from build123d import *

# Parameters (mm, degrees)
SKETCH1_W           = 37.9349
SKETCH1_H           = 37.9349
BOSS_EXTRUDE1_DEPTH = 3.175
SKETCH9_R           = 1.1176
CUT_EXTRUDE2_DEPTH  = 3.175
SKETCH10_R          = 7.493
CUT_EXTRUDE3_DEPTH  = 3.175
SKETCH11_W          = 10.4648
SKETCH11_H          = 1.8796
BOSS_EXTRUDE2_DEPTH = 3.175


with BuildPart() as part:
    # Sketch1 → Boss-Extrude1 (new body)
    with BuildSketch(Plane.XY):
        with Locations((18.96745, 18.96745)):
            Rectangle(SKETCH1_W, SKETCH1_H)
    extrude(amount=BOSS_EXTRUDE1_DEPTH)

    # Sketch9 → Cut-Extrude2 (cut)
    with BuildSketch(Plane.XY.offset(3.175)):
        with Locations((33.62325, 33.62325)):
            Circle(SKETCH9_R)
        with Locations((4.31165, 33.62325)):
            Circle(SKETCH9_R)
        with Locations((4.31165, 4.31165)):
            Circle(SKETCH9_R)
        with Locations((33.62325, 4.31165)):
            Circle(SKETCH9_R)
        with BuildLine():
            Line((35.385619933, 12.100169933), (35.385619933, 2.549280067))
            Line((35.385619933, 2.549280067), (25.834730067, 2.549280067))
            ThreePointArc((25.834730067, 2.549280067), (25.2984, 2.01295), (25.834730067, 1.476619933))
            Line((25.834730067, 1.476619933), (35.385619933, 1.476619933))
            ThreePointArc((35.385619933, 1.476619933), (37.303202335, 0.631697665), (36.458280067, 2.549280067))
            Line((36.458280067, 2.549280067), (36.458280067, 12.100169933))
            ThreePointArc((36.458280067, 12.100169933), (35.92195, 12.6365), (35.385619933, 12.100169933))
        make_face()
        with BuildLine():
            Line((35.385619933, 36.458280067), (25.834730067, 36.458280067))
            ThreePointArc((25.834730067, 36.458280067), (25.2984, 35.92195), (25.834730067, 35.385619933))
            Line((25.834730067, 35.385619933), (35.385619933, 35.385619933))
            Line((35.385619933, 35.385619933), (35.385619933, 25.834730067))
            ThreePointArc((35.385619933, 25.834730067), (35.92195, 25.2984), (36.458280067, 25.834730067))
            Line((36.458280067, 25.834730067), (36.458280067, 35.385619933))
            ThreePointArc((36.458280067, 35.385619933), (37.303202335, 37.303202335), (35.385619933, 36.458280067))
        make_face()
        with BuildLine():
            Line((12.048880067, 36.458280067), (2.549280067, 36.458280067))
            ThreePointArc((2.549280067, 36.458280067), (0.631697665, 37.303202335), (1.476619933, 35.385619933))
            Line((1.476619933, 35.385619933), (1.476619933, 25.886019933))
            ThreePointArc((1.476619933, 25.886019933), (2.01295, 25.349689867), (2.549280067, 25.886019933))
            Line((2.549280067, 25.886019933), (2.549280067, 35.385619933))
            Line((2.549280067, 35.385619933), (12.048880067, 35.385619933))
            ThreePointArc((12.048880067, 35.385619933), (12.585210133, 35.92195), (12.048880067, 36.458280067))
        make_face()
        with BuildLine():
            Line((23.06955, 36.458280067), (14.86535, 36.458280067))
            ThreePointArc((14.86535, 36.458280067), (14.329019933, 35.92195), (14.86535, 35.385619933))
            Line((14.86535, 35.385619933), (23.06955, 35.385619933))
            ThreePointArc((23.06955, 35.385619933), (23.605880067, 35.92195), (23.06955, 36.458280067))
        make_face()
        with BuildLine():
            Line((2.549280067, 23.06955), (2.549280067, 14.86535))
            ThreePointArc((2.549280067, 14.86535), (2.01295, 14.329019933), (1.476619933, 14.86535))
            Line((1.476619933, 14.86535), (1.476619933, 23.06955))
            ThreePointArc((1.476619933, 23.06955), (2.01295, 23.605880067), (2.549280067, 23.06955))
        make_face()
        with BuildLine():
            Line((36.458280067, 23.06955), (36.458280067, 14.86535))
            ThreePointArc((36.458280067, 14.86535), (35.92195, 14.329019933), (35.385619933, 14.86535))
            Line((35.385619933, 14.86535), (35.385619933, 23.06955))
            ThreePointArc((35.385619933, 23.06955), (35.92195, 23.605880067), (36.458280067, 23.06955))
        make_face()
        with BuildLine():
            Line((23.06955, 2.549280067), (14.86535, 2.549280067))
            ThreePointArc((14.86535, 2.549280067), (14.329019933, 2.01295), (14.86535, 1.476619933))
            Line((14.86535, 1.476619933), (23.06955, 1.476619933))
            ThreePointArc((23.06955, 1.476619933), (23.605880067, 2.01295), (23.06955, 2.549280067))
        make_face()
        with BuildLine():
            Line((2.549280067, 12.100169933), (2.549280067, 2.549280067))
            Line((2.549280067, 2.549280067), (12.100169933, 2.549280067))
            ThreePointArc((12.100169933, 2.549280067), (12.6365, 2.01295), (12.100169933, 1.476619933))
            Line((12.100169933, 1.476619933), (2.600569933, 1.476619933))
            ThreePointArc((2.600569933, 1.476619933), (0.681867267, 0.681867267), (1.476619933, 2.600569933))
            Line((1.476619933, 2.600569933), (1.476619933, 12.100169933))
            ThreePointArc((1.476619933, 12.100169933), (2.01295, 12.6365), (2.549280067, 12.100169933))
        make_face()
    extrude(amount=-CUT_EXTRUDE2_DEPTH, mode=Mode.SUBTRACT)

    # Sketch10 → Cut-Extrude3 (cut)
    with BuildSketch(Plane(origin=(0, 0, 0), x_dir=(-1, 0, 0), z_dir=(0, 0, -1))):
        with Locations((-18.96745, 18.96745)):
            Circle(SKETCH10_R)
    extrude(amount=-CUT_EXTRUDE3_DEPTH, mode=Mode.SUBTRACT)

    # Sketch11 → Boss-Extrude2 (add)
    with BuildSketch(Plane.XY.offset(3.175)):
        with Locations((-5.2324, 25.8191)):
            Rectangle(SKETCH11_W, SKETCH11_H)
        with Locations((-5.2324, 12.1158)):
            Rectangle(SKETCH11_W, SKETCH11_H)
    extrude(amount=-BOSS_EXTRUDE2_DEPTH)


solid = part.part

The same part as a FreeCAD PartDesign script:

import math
import FreeCAD as App
import Part
import Sketcher

V = App.Vector
Q = App.Units.Quantity

doc = App.newDocument("Part")
body = doc.addObject("PartDesign::Body", "Body")

# Sketch on XY plane
sketch1 = body.newObject("Sketcher::SketchObject", "Sketch")
sketch1.AttachmentSupport = (doc.getObject("XY_Plane"), [""])
sketch1.MapMode = "FlatFace"
sketch1.addGeometry([
    Part.LineSegment(V(0, 37.9349, 0), V(0, 0, 0)),
    Part.LineSegment(V(0, 0, 0), V(37.9349, 0, 0)),
    Part.LineSegment(V(37.9349, 0, 0), V(37.9349, 37.9349, 0)),
    Part.LineSegment(V(37.9349, 37.9349, 0), V(0, 37.9349, 0)),
], False)
sketch1.addConstraint([
    Sketcher.Constraint("Coincident", 0, 2, 1, 1),
    Sketcher.Constraint("Coincident", 1, 2, 2, 1),
    Sketcher.Constraint("Coincident", 2, 2, 3, 1),
    Sketcher.Constraint("Coincident", 3, 2, 0, 1),
    Sketcher.Constraint("Vertical", 0),
    Sketcher.Constraint("Horizontal", 1),
    Sketcher.Constraint("Vertical", 2),
    Sketcher.Constraint("Horizontal", 3),
    Sketcher.Constraint("Coincident", 0, 2, -1, 1),
    Sketcher.Constraint("Equal", 3, 0),
    Sketcher.Constraint("DistanceX", 1, 1, 1, 2, Q("1.4935 in")),
])
pad1 = body.newObject("PartDesign::Pad", "Pad")
pad1.Profile = sketch1
pad1.Length = Q("0.125 in")

# Sketch on XY plane
sketch2 = body.newObject("Sketcher::SketchObject", "Sketch001")
sketch2.AttachmentSupport = (doc.getObject("XY_Plane"), [""])
sketch2.MapMode = "FlatFace"
sketch2.AttachmentOffset = App.Placement(V(0, 0, 0.125 * 25.4), App.Rotation())
sketch2.addGeometry([
    Part.Circle(V(33.62325, 33.62325, 0), V(0, 0, 1), 1.1176),  # 0
    Part.Circle(V(4.31165, 33.62325, 0), V(0, 0, 1), 1.1176),  # 1
    Part.Circle(V(4.31165, 4.31165, 0), V(0, 0, 1), 1.1176),  # 2
    Part.Circle(V(33.62325, 4.31165, 0), V(0, 0, 1), 1.1176),  # 3
    Part.LineSegment(V(35.38562, 12.10017, 0), V(35.38562, 2.54928, 0)),  # 4
    Part.LineSegment(V(35.38562, 2.54928, 0), V(25.83473, 2.54928, 0)),  # 5
    Part.ArcOfCircle(Part.Circle(V(25.83473, 2.01295, 0), V(0, 0, 1), 0.53633), math.radians(90), math.radians(270)),  # 6
    Part.LineSegment(V(25.83473, 1.47662, 0), V(35.38562, 1.47662, 0)),  # 7
    Part.ArcOfCircle(Part.Circle(V(36.50845, 1.42645, 0), V(0, 0, 1), 1.12395), math.radians(177.441646), math.radians(452.558354)),  # 8
    Part.LineSegment(V(36.45828, 2.54928, 0), V(36.45828, 12.10017, 0)),  # 9
    Part.ArcOfCircle(Part.Circle(V(35.92195, 12.10017, 0), V(0, 0, 1), 0.53633), math.radians(0), math.radians(180)),  # 10
    Part.LineSegment(V(35.38562, 36.45828, 0), V(25.83473, 36.45828, 0)),  # 11
    Part.ArcOfCircle(Part.Circle(V(25.83473, 35.92195, 0), V(0, 0, 1), 0.53633), math.radians(90), math.radians(270)),  # 12
    Part.LineSegment(V(25.83473, 35.38562, 0), V(35.38562, 35.38562, 0)),  # 13
    Part.LineSegment(V(35.38562, 35.38562, 0), V(35.38562, 25.83473, 0)),  # 14
    Part.ArcOfCircle(Part.Circle(V(35.92195, 25.83473, 0), V(0, 0, 1), 0.53633), math.radians(180), math.radians(360)),  # 15
    Part.LineSegment(V(36.45828, 25.83473, 0), V(36.45828, 35.38562, 0)),  # 16
    Part.ArcOfCircle(Part.Circle(V(36.50845, 36.50845, 0), V(0, 0, 1), 1.12395), math.radians(-92.558354), math.radians(182.558354)),  # 17
    Part.LineSegment(V(12.04888, 36.45828, 0), V(2.54928, 36.45828, 0)),  # 18
    Part.ArcOfCircle(Part.Circle(V(1.42645, 36.50845, 0), V(0, 0, 1), 1.12395), math.radians(-2.558354), math.radians(272.558354)),  # 19
    Part.LineSegment(V(1.47662, 35.38562, 0), V(1.47662, 25.88602, 0)),  # 20
    Part.ArcOfCircle(Part.Circle(V(2.01295, 25.88602, 0), V(0, 0, 1), 0.53633), math.radians(-180), math.radians(0)),  # 21
    Part.LineSegment(V(2.54928, 25.88602, 0), V(2.54928, 35.38562, 0)),  # 22
    Part.LineSegment(V(2.54928, 35.38562, 0), V(12.04888, 35.38562, 0)),  # 23
    Part.ArcOfCircle(Part.Circle(V(12.04888, 35.92195, 0), V(0, 0, 1), 0.53633), math.radians(-90), math.radians(90)),  # 24
    Part.LineSegment(V(23.06955, 36.45828, 0), V(14.86535, 36.45828, 0)),  # 25
    Part.ArcOfCircle(Part.Circle(V(14.86535, 35.92195, 0), V(0, 0, 1), 0.53633), math.radians(90), math.radians(270)),  # 26
    Part.LineSegment(V(14.86535, 35.38562, 0), V(23.06955, 35.38562, 0)),  # 27
    Part.ArcOfCircle(Part.Circle(V(23.06955, 35.92195, 0), V(0, 0, 1), 0.53633), math.radians(-90), math.radians(90)),  # 28
    Part.LineSegment(V(2.54928, 14.86535, 0), V(2.54928, 23.06955, 0)),  # 29
    Part.ArcOfCircle(Part.Circle(V(2.01295, 23.06955, 0), V(0, 0, 1), 0.53633), math.radians(0), math.radians(180)),  # 30
    Part.LineSegment(V(1.47662, 23.06955, 0), V(1.47662, 14.86535, 0)),  # 31
    Part.ArcOfCircle(Part.Circle(V(2.01295, 14.86535, 0), V(0, 0, 1), 0.53633), math.radians(180), math.radians(360)),  # 32
    Part.LineSegment(V(36.45828, 14.86535, 0), V(36.45828, 23.06955, 0)),  # 33
    Part.ArcOfCircle(Part.Circle(V(35.92195, 23.06955, 0), V(0, 0, 1), 0.53633), math.radians(0), math.radians(180)),  # 34
    Part.LineSegment(V(35.38562, 23.06955, 0), V(35.38562, 14.86535, 0)),  # 35
    Part.ArcOfCircle(Part.Circle(V(35.92195, 14.86535, 0), V(0, 0, 1), 0.53633), math.radians(180), math.radians(360)),  # 36
    Part.LineSegment(V(23.06955, 2.54928, 0), V(14.86535, 2.54928, 0)),  # 37
    Part.ArcOfCircle(Part.Circle(V(14.86535, 2.01295, 0), V(0, 0, 1), 0.53633), math.radians(90), math.radians(270)),  # 38
    Part.LineSegment(V(14.86535, 1.47662, 0), V(23.06955, 1.47662, 0)),  # 39
    Part.ArcOfCircle(Part.Circle(V(23.06955, 2.01295, 0), V(0, 0, 1), 0.53633), math.radians(-90), math.radians(90)),  # 40
    Part.LineSegment(V(2.54928, 2.54928, 0), V(2.54928, 12.10017, 0)),  # 41
    Part.ArcOfCircle(Part.Circle(V(2.01295, 12.10017, 0), V(0, 0, 1), 0.53633), math.radians(0), math.radians(180)),  # 42
    Part.LineSegment(V(1.47662, 12.10017, 0), V(1.47662, 2.60057, 0)),  # 43
    Part.ArcOfCircle(Part.Circle(V(1.47662, 1.47662, 0), V(0, 0, 1), 1.12395), math.radians(90), math.radians(360)),  # 44
    Part.LineSegment(V(2.60057, 1.47662, 0), V(12.10017, 1.47662, 0)),  # 45
    Part.ArcOfCircle(Part.Circle(V(12.10017, 2.01295, 0), V(0, 0, 1), 0.53633), math.radians(-90), math.radians(90)),  # 46
    Part.LineSegment(V(12.10017, 2.54928, 0), V(2.54928, 2.54928, 0)),  # 47
], False)
sketch2.addConstraint([
    Sketcher.Constraint("Coincident", 4, 2, 5, 1),
    Sketcher.Constraint("Tangent", 5, 2, 6, 1),
    Sketcher.Constraint("Tangent", 6, 2, 7, 1),
    Sketcher.Constraint("Coincident", 7, 2, 8, 1),
    Sketcher.Constraint("Coincident", 8, 2, 9, 1),
    Sketcher.Constraint("Tangent", 9, 2, 10, 1),
    Sketcher.Constraint("Tangent", 10, 2, 4, 1),
    Sketcher.Constraint("Tangent", 11, 2, 12, 1),
    Sketcher.Constraint("Tangent", 12, 2, 13, 1),
    Sketcher.Constraint("Coincident", 13, 2, 14, 1),
    Sketcher.Constraint("Tangent", 14, 2, 15, 1),
    Sketcher.Constraint("Tangent", 15, 2, 16, 1),
    Sketcher.Constraint("Coincident", 16, 2, 17, 1),
    Sketcher.Constraint("Coincident", 17, 2, 11, 1),
    Sketcher.Constraint("Coincident", 18, 2, 19, 1),
    Sketcher.Constraint("Coincident", 19, 2, 20, 1),
    Sketcher.Constraint("Tangent", 20, 2, 21, 1),
    Sketcher.Constraint("Tangent", 21, 2, 22, 1),
    Sketcher.Constraint("Coincident", 22, 2, 23, 1),
    Sketcher.Constraint("Tangent", 23, 2, 24, 1),
    Sketcher.Constraint("Tangent", 24, 2, 18, 1),
    Sketcher.Constraint("Tangent", 25, 2, 26, 1),
    Sketcher.Constraint("Tangent", 26, 2, 27, 1),
    Sketcher.Constraint("Tangent", 27, 2, 28, 1),
    Sketcher.Constraint("Tangent", 28, 2, 25, 1),
    Sketcher.Constraint("Tangent", 29, 2, 30, 1),
    Sketcher.Constraint("Tangent", 30, 2, 31, 1),
    Sketcher.Constraint("Tangent", 31, 2, 32, 1),
    Sketcher.Constraint("Tangent", 32, 2, 29, 1),
    Sketcher.Constraint("Tangent", 33, 2, 34, 1),
    Sketcher.Constraint("Tangent", 34, 2, 35, 1),
    Sketcher.Constraint("Tangent", 35, 2, 36, 1),
    Sketcher.Constraint("Tangent", 36, 2, 33, 1),
    Sketcher.Constraint("Tangent", 37, 2, 38, 1),
    Sketcher.Constraint("Tangent", 38, 2, 39, 1),
    Sketcher.Constraint("Tangent", 39, 2, 40, 1),
    Sketcher.Constraint("Tangent", 40, 2, 37, 1),
    Sketcher.Constraint("Tangent", 41, 2, 42, 1),
    Sketcher.Constraint("Tangent", 42, 2, 43, 1),
    Sketcher.Constraint("Coincident", 43, 2, 44, 1),
    Sketcher.Constraint("Coincident", 44, 2, 45, 1),
    Sketcher.Constraint("Tangent", 45, 2, 46, 1),
    Sketcher.Constraint("Tangent", 46, 2, 47, 1),
    Sketcher.Constraint("Coincident", 47, 2, 41, 1),
    Sketcher.Constraint("Vertical", 4),
    Sketcher.Constraint("Horizontal", 5),
    Sketcher.Constraint("Horizontal", 7),
    Sketcher.Constraint("Vertical", 9),
    Sketcher.Constraint("Horizontal", 11),
    Sketcher.Constraint("Horizontal", 13),
    Sketcher.Constraint("Vertical", 14),
    Sketcher.Constraint("Vertical", 16),
    Sketcher.Constraint("Horizontal", 18),
    Sketcher.Constraint("Vertical", 20),
    Sketcher.Constraint("Vertical", 22),
    Sketcher.Constraint("Horizontal", 23),
    Sketcher.Constraint("Horizontal", 25),
    Sketcher.Constraint("Horizontal", 27),
    Sketcher.Constraint("Vertical", 29),
    Sketcher.Constraint("Vertical", 31),
    Sketcher.Constraint("Vertical", 33),
    Sketcher.Constraint("Vertical", 35),
    Sketcher.Constraint("Horizontal", 37),
    Sketcher.Constraint("Horizontal", 39),
    Sketcher.Constraint("Vertical", 41),
    Sketcher.Constraint("Vertical", 43),
    Sketcher.Constraint("Horizontal", 45),
    Sketcher.Constraint("Horizontal", 47),
    Sketcher.Constraint("Equal", 0, 1),
    Sketcher.Constraint("Equal", 1, 2),
    Sketcher.Constraint("Equal", 2, 3),
    Sketcher.Constraint("Equal", 6, 10),
    Sketcher.Constraint("Equal", 10, 12),
    Sketcher.Constraint("Equal", 12, 15),
    Sketcher.Constraint("Equal", 8, 17),
    Sketcher.Constraint("Equal", 17, 19),
    Sketcher.Constraint("Equal", 15, 21),
    Sketcher.Constraint("Equal", 21, 24),
    Sketcher.Constraint("Equal", 24, 26),
    Sketcher.Constraint("Equal", 28, 30),
    Sketcher.Constraint("Equal", 32, 34),
    Sketcher.Constraint("Equal", 36, 38),
    Sketcher.Constraint("Equal", 40, 42),
    Sketcher.Constraint("Equal", 19, 44),
    Sketcher.Constraint("Equal", 42, 46),
    Sketcher.Constraint("Horizontal", 0, 3, 1, 3),
    Sketcher.Constraint("Horizontal", 2, 3, 3, 3),
    Sketcher.Constraint("Horizontal", 17, 3, 19, 3),
    Sketcher.Constraint("Horizontal", 12, 3, 24, 3),
    Sketcher.Constraint("Horizontal", 24, 3, 26, 3),
    Sketcher.Constraint("Horizontal", 30, 3, 34, 3),
    Sketcher.Constraint("Horizontal", 32, 3, 36, 3),
    Sketcher.Constraint("Horizontal", 6, 3, 38, 3),
    Sketcher.Constraint("Horizontal", 10, 3, 42, 3),
    Sketcher.Constraint("Horizontal", 40, 3, 46, 3),
    Sketcher.Constraint("Horizontal", 44, 3, 6, 2),
    Sketcher.Constraint("Horizontal", 5, 2, 8, 2),
    Sketcher.Constraint("Horizontal", 13, 2, 16, 2),
    Sketcher.Constraint("Horizontal", 16, 2, 19, 2),
    Sketcher.Constraint("Vertical", 1, 3, 2, 3),
    Sketcher.Constraint("Vertical", 0, 3, 3, 3),
    Sketcher.Constraint("Vertical", 6, 3, 12, 3),
    Sketcher.Constraint("Vertical", 10, 3, 15, 3),
    Sketcher.Constraint("Vertical", 8, 3, 17, 3),
    Sketcher.Constraint("Vertical", 21, 3, 30, 3),
    Sketcher.Constraint("Vertical", 15, 3, 34, 3),
    Sketcher.Constraint("Vertical", 26, 3, 38, 3),
    Sketcher.Constraint("Vertical", 28, 3, 40, 3),
    Sketcher.Constraint("Vertical", 32, 3, 42, 3),
    Sketcher.Constraint("Vertical", 4, 2, 7, 2),
    Sketcher.Constraint("Vertical", 44, 3, 19, 2),
    Sketcher.Constraint("Equal", 23, 45),
    Sketcher.Constraint("Equal", 13, 47),
    Sketcher.Constraint("Equal", 47, 4),
    Sketcher.Constraint("Equal", 9, 14),
    Sketcher.Constraint("Equal", 45, 20),
    Sketcher.Constraint("Equal", 39, 29),
    Sketcher.Constraint("Diameter", 0, Q("0.088 in")),
    Sketcher.Constraint("DistanceX", 18, 2, 18, 1, Q("0.374 in")),
    Sketcher.Constraint("DistanceX", 25, 2, 25, 1, Q("0.323 in")),
    Sketcher.Constraint("Radius", 6, Q("0.53633 mm")),
    Sketcher.Constraint("Radius", 8, Q("1.12395 mm")),
    Sketcher.Constraint("DistanceX", -1, 1, 0, 3, Q("33.62325 mm")),
    Sketcher.Constraint("DistanceY", -1, 1, 0, 3, Q("33.62325 mm")),
    Sketcher.Constraint("DistanceX", -1, 1, 1, 3, Q("4.31165 mm")),
    Sketcher.Constraint("DistanceY", -1, 1, 2, 3, Q("4.31165 mm")),
    Sketcher.Constraint("DistanceX", -1, 1, 6, 3, Q("25.83473 mm")),
    Sketcher.Constraint("DistanceY", -1, 1, 6, 3, Q("2.01295 mm")),
    Sketcher.Constraint("DistanceY", -1, 1, 12, 3, Q("35.92195 mm")),
    Sketcher.Constraint("DistanceX", -1, 1, 19, 3, Q("1.42645 mm")),
    Sketcher.Constraint("DistanceX", -1, 1, 26, 3, Q("14.86535 mm")),
    Sketcher.Constraint("DistanceY", -1, 1, 30, 3, Q("23.06955 mm")),
])
pocket1 = body.newObject("PartDesign::Pocket", "Pocket")
pocket1.Profile = sketch2
pocket1.Length = Q("0.125 in")

# Sketch on XY plane
sketch3 = body.newObject("Sketcher::SketchObject", "Sketch002")
sketch3.AttachmentSupport = (doc.getObject("XY_Plane"), [""])
sketch3.MapMode = "FlatFace"
sketch3.addGeometry(Part.Circle(V(18.96745, 18.96745, 0), V(0, 0, 1), 7.493), False)
sketch3.addConstraint([
    Sketcher.Constraint("Diameter", 0, Q("0.59 in")),
    Sketcher.Constraint("DistanceX", -1, 1, 0, 3, Q("18.96745 mm")),
    Sketcher.Constraint("DistanceY", -1, 1, 0, 3, Q("18.96745 mm")),
])
pocket2 = body.newObject("PartDesign::Pocket", "Pocket001")
pocket2.Profile = sketch3
pocket2.Length = Q("0.125 in")
pocket2.Reversed = True

# Sketch on XY plane
sketch4 = body.newObject("Sketcher::SketchObject", "Sketch003")
sketch4.AttachmentSupport = (doc.getObject("XY_Plane"), [""])
sketch4.MapMode = "FlatFace"
sketch4.AttachmentOffset = App.Placement(V(0, 0, 0.125 * 25.4), App.Rotation())
sketch4.addGeometry([
    Part.LineSegment(V(-10.4648, 26.7589, 0), V(-10.4648, 24.8793, 0)),  # 0
    Part.LineSegment(V(-10.4648, 24.8793, 0), V(0, 24.8793, 0)),  # 1
    Part.LineSegment(V(0, 24.8793, 0), V(0, 26.7589, 0)),  # 2
    Part.LineSegment(V(0, 26.7589, 0), V(-10.4648, 26.7589, 0)),  # 3
    Part.LineSegment(V(-10.4648, 13.0556, 0), V(-10.4648, 11.176, 0)),  # 4
    Part.LineSegment(V(-10.4648, 11.176, 0), V(0, 11.176, 0)),  # 5
    Part.LineSegment(V(0, 11.176, 0), V(0, 13.0556, 0)),  # 6
    Part.LineSegment(V(0, 13.0556, 0), V(-10.4648, 13.0556, 0)),  # 7
], False)
sketch4.addConstraint([
    Sketcher.Constraint("Coincident", 0, 2, 1, 1),
    Sketcher.Constraint("Coincident", 1, 2, 2, 1),
    Sketcher.Constraint("Coincident", 2, 2, 3, 1),
    Sketcher.Constraint("Coincident", 3, 2, 0, 1),
    Sketcher.Constraint("Coincident", 4, 2, 5, 1),
    Sketcher.Constraint("Coincident", 5, 2, 6, 1),
    Sketcher.Constraint("Coincident", 6, 2, 7, 1),
    Sketcher.Constraint("Coincident", 7, 2, 4, 1),
    Sketcher.Constraint("Vertical", 0),
    Sketcher.Constraint("Horizontal", 1),
    Sketcher.Constraint("Vertical", 2),
    Sketcher.Constraint("Horizontal", 3),
    Sketcher.Constraint("Vertical", 4),
    Sketcher.Constraint("Horizontal", 5),
    Sketcher.Constraint("Vertical", 6),
    Sketcher.Constraint("Horizontal", 7),
    Sketcher.Constraint("PointOnObject", 1, 2, -2),
    Sketcher.Constraint("PointOnObject", 5, 2, -2),
    Sketcher.Constraint("Vertical", 3, 2, 4, 2),
    Sketcher.Constraint("Equal", 2, 4),
    Sketcher.Constraint("DistanceX", 1, 1, 1, 2, Q("0.412 in")),
    Sketcher.Constraint("DistanceY", 0, 2, 0, 1, Q("0.074 in")),
    Sketcher.Constraint("DistanceY", -1, 1, 4, 2, Q("0.44 in")),
    Sketcher.Constraint("DistanceY", -1, 1, 0, 2, Q("0.9795 in")),
])
pad2 = body.newObject("PartDesign::Pad", "Pad001")
pad2.Profile = sketch4
pad2.Length = Q("0.125 in")
pad2.Reversed = True

doc.recompute()
